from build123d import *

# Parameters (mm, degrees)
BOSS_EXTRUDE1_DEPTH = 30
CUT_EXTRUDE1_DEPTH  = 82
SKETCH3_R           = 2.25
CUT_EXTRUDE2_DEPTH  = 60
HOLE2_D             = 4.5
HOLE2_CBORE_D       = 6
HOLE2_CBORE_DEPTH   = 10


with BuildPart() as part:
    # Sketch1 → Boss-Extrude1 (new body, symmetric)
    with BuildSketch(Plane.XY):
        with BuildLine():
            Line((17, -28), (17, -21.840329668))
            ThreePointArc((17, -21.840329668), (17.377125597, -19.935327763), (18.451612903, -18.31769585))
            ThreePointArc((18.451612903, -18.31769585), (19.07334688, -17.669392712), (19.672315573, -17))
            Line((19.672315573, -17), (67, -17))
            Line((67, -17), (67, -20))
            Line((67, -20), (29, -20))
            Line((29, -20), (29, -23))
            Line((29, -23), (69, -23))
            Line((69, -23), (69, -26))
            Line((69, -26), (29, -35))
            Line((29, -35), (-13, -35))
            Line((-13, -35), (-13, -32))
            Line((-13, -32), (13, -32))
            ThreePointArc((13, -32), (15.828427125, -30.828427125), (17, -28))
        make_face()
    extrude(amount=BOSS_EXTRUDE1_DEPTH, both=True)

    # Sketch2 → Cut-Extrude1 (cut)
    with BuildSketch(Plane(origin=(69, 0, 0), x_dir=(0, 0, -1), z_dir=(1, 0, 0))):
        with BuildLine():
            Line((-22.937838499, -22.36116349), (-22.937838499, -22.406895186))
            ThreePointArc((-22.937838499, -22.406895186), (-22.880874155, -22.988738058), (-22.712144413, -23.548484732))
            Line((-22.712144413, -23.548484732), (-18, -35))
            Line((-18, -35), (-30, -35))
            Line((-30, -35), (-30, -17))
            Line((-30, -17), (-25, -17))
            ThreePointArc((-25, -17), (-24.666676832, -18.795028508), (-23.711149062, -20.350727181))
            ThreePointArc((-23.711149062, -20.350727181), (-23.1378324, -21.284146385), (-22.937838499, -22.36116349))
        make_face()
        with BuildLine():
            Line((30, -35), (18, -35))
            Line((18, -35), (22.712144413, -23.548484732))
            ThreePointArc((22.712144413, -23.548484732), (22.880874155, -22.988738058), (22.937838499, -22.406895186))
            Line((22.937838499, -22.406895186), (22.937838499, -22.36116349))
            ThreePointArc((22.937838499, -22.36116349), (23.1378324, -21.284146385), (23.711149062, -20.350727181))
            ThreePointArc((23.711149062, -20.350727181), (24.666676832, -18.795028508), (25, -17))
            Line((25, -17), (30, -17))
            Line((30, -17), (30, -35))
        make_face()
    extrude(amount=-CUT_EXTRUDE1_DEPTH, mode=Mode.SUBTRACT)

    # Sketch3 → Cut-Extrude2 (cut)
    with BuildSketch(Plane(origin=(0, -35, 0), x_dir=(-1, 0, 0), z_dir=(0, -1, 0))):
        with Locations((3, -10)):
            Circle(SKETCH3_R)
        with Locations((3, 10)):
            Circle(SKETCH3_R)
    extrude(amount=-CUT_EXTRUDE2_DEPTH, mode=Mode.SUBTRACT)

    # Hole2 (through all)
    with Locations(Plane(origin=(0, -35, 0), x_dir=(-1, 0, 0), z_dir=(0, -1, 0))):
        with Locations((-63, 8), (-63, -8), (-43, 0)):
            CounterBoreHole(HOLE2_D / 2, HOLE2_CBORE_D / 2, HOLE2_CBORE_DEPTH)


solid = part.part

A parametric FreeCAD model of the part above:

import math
import FreeCAD as App
import Part
import Sketcher

V = App.Vector

doc = App.newDocument("Part")
body = doc.addObject("PartDesign::Body", "Body")

sketch1 = body.newObject("Sketcher::SketchObject", "Sketch")
sketch1.AttachmentSupport = (doc.getObject("XY_Plane"), [""])
sketch1.MapMode = "FlatFace"
sketch1.addGeometry([
    Part.LineSegment(V(17, -21.8, 0), V(17, -28, 0)),
    Part.ArcOfCircle(Part.Circle(V(13, -28, 0), V(0, 0, 1), 4), math.radians(-90), math.radians(0)),
    Part.LineSegment(V(13, -32, 0), V(-13, -32, 0)),
    Part.LineSegment(V(-13, -32, 0), V(-13, -35, 0)),
    Part.LineSegment(V(-13, -35, 0), V(29, -35, 0)),
    Part.LineSegment(V(29, -35, 0), V(69, -26, 0)),
    Part.LineSegment(V(69, -26, 0), V(69, -23, 0)),
    Part.LineSegment(V(69, -23, 0), V(29, -23, 0)),
    Part.LineSegment(V(29, -23, 0), V(29, -20, 0)),
    Part.LineSegment(V(29, -20, 0), V(67, -20, 0)),
    Part.LineSegment(V(67, -20, 0), V(67, -17, 0)),
    Part.LineSegment(V(67, -17, 0), V(19.7, -17, 0)),
    Part.ArcOfCircle(Part.Circle(V(0, 0, 0), V(0, 0, 1), 26), math.radians(-44.79), math.radians(-40.83)),
    Part.ArcOfCircle(Part.Circle(V(22, -21.8, 0), V(0, 0, 1), 5), math.radians(135), math.radians(180)),
], False)
sketch1.addConstraint([
    Sketcher.Constraint("Tangent", 0, 2, 1, 2),
    Sketcher.Constraint("Tangent", 1, 1, 2, 1),
    Sketcher.Constraint("Coincident", 2, 2, 3, 1),
    Sketcher.Constraint("Coincident", 3, 2, 4, 1),
    Sketcher.Constraint("Coincident", 4, 2, 5, 1),
    Sketcher.Constraint("Coincident", 5, 2, 6, 1),
    Sketcher.Constraint("Coincident", 6, 2, 7, 1),
    Sketcher.Constraint("Coincident", 7, 2, 8, 1),
    Sketcher.Constraint("Coincident", 8, 2, 9, 1),
    Sketcher.Constraint("Coincident", 9, 2, 10, 1),
    Sketcher.Constraint("Coincident", 10, 2, 11, 1),
    Sketcher.Constraint("Coincident", 11, 2, 12, 2),
    Sketcher.Constraint("Tangent", 12, 1, 13, 1),
    Sketcher.Constraint("Tangent", 13, 2, 0, 1),
    Sketcher.Constraint("Vertical", 0),
    Sketcher.Constraint("Horizontal", 2),
    Sketcher.Constraint("Vertical", 3),
    Sketcher.Constraint("Horizontal", 4),
    Sketcher.Constraint("Vertical", 6),
    Sketcher.Constraint("Horizontal", 7),
    Sketcher.Constraint("Vertical", 8),
    Sketcher.Constraint("Horizontal", 9),
    Sketcher.Constraint("Vertical", 10),
    Sketcher.Constraint("Horizontal", 11),
    Sketcher.Constraint("Coincident", 12, 3, -1, 1),
    Sketcher.Constraint("Vertical", 4, 2, 7, 2),
    Sketcher.Constraint("Equal", 3, 6),
    Sketcher.Constraint("Equal", 6, 8),
    Sketcher.Constraint("Equal", 8, 10),
    Sketcher.Constraint("Radius", 1, 4.0),
    Sketcher.Constraint("Radius", 12, 25.999999),
    Sketcher.Constraint("Radius", 13, 5.0),
    Sketcher.Constraint("DistanceX", 2, 2, 2, 1, 26.0),
    Sketcher.Constraint("DistanceX", 4, 1, 4, 2, 42.0),
    Sketcher.Constraint("DistanceX", 7, 2, 7, 1, 40.0),
    Sketcher.Constraint("DistanceX", 9, 1, 9, 2, 38.0),
    Sketcher.Constraint("DistanceY", 3, 2, 3, 1, 3.0),
    Sketcher.Constraint("Distance", 5, 41.0),
    Sketcher.Constraint("DistanceX", -1, 1, 1, 3, 13.0),
    Sketcher.Constraint("DistanceY", 1, 3, -1, 1, 28.0),
])
pad1 = body.newObject("PartDesign::Pad", "Pad")
pad1.Profile = sketch1
pad1.Length = 60
pad1.Midplane = True

sketch2 = body.newObject("Sketcher::SketchObject", "Sketch001")
sketch2.AttachmentSupport = (doc.getObject("YZ_Plane"), [""])
sketch2.MapMode = "FlatFace"
sketch2.AttachmentOffset = App.Placement(V(0, 0, 69), App.Rotation())
sketch2.addGeometry([
    Part.LineSegment(V(-22.407, 22.938, 0), V(-22.361, 22.938, 0)),
    Part.ArcOfCircle(Part.Circle(V(-22.361, 25.938, 0), V(0, 0, 1), 3), math.radians(-90), math.radians(-48)),
    Part.ArcOfCircle(Part.Circle(V(-17, 20, 0), V(0, 0, 1), 5), math.radians(90), math.radians(132)),
    Part.LineSegment(V(-17, 25, 0), V(-17, 30, 0)),
    Part.LineSegment(V(-17, 30, 0), V(-35, 30, 0)),
    Part.LineSegment(V(-35, 30, 0), V(-35, 18, 0)),
    Part.LineSegment(V(-35, 18, 0), V(-23.548, 22.712, 0)),
    Part.ArcOfCircle(Part.Circle(V(-22.407, 19.938, 0), V(0, 0, 1), 3), math.radians(90), math.radians(112)),
    Part.LineSegment(V(-35, -18, 0), V(-35, -30, 0)),
    Part.LineSegment(V(-35, -30, 0), V(-17, -30, 0)),
    Part.LineSegment(V(-17, -30, 0), V(-17, -25, 0)),
    Part.ArcOfCircle(Part.Circle(V(-17, -20, 0), V(0, 0, 1), 5), math.radians(-132), math.radians(-90)),
    Part.ArcOfCircle(Part.Circle(V(-22.361, -25.938, 0), V(0, 0, 1), 3), math.radians(48), math.radians(90)),
    Part.LineSegment(V(-22.361, -22.938, 0), V(-22.407, -22.938, 0)),
    Part.ArcOfCircle(Part.Circle(V(-22.407, -19.938, 0), V(0, 0, 1), 3), math.radians(-112), math.radians(-90)),
    Part.LineSegment(V(-23.548, -22.712, 0), V(-35, -18, 0)),
], False)
sketch2.addConstraint([
    Sketcher.Constraint("Tangent", 0, 2, 1, 1),
    Sketcher.Constraint("Tangent", 1, 2, 2, 2),
    Sketcher.Constraint("Coincident", 2, 1, 3, 1),
    Sketcher.Constraint("Coincident", 3, 2, 4, 1),
    Sketcher.Constraint("Coincident", 4, 2, 5, 1),
    Sketcher.Constraint("Coincident", 5, 2, 6, 1),
    Sketcher.Constraint("Tangent", 6, 2, 7, 2),
    Sketcher.Constraint("Tangent", 7, 1, 0, 1),
    Sketcher.Constraint("Coincident", 8, 2, 9, 1),
    Sketcher.Constraint("Coincident", 9, 2, 10, 1),
    Sketcher.Constraint("Coincident", 10, 2, 11, 2),
    Sketcher.Constraint("Tangent", 11, 1, 12, 1),
    Sketcher.Constraint("Tangent", 12, 2, 13, 1),
    Sketcher.Constraint("Tangent", 13, 2, 14, 2),
    Sketcher.Constraint("Tangent", 14, 1, 15, 1),
    Sketcher.Constraint("Coincident", 15, 2, 8, 1),
    Sketcher.Constraint("Horizontal", 0),
    Sketcher.Constraint("Vertical", 3),
    Sketcher.Constraint("Horizontal", 4),
    Sketcher.Constraint("Vertical", 5),
    Sketcher.Constraint("Vertical", 8),
    Sketcher.Constraint("Horizontal", 9),
    Sketcher.Constraint("Vertical", 10),
    Sketcher.Constraint("Horizontal", 13),
    Sketcher.Constraint("Equal", 1, 7),
    Sketcher.Constraint("Equal", 2, 11),
    Sketcher.Constraint("Equal", 7, 12),
    Sketcher.Constraint("Equal", 12, 14),
    Sketcher.Constraint("Symmetric", 2, 3, 11, 3, -1),
    Sketcher.Constraint("Symmetric", 7, 3, 14, 3, -1),
    Sketcher.Constraint("Symmetric", 4, 2, 8, 2, -1),
    Sketcher.Constraint("Vertical", 11, 3, 2, 1),
    Sketcher.Constraint("Vertical", 3, 2, 9, 2),
    Sketcher.Constraint("Vertical", 6, 2, 14, 1),
    Sketcher.Constraint("Radius", 1, 3.0),
    Sketcher.Constraint("Radius", 2, 5.0),
    Sketcher.Constraint("DistanceX", 4, 2, 4, 1, 18.0),
    Sketcher.Constraint("DistanceY", 3, 1, 3, 2, 5.0),
    Sketcher.Constraint("DistanceY", 5, 2, 5, 1, 12.0),
    Sketcher.Constraint("DistanceX", 2, 3, -1, 1, 17.0),
    Sketcher.Constraint("DistanceY", -1, 1, 2, 3, 20.0),
    Sketcher.Constraint("DistanceX", 0, 1, 0, 2, 0.045732),
    Sketcher.Constraint("DistanceY", -1, 1, 1, 3, 25.937839),
])
pocket1 = body.newObject("PartDesign::Pocket", "Pocket")
pocket1.Profile = sketch2
pocket1.Length = 82

sketch3 = body.newObject("Sketcher::SketchObject", "Sketch002")
sketch3.AttachmentSupport = (doc.getObject("XZ_Plane"), [""])
sketch3.MapMode = "FlatFace"
sketch3.AttachmentOffset = App.Placement(V(0, 0, 35), App.Rotation())
sketch3.addGeometry([
    Part.Circle(V(-3, 10, 0), V(0, 0, 1), 2.2),
    Part.Circle(V(-3, -10, 0), V(0, 0, 1), 2.2),
], False)
sketch3.addConstraint([
    Sketcher.Constraint("Equal", 0, 1),
    Sketcher.Constraint("Symmetric", 0, 3, 1, 3, -1),
    Sketcher.Constraint("Diameter", 0, 4.5),
    Sketcher.Constraint("DistanceX", 0, 3, -1, 1, 3.0),
    Sketcher.Constraint("DistanceY", -1, 1, 0, 3, 10.0),
])
pocket2 = body.newObject("PartDesign::Pocket", "Pocket001")
pocket2.Profile = sketch3
pocket2.Length = 60

sketch4 = body.newObject("Sketcher::SketchObject", "Sketch003")
sketch4.AttachmentSupport = (doc.getObject("XZ_Plane"), [""])
sketch4.MapMode = "FlatFace"
sketch4.AttachmentOffset = App.Placement(V(0, 0, 35), App.Rotation())
sketch4.addGeometry([
    Part.Circle(V(63, -8, 0), V(0, 0, 1), 2.2),
    Part.Circle(V(63, 8, 0), V(0, 0, 1), 2.2),
    Part.Circle(V(43, 0, 0), V(0, 0, 1), 2.2),
], False)
sketch4.addConstraint([
    Sketcher.Constraint("Equal", 0, 1),
    Sketcher.Constraint("Equal", 1, 2),
    Sketcher.Constraint("Symmetric", 0, 3, 1, 3, -1),
    Sketcher.Constraint("PointOnObject", 2, 3, -1),
    Sketcher.Constraint("Diameter", 0, 4.5),
    Sketcher.Constraint("DistanceX", -1, 1, 0, 3, 63.0),
    Sketcher.Constraint("DistanceY", 0, 3, -1, 1, 8.0),
    Sketcher.Constraint("DistanceX", -1, 1, 2, 3, 43.0),
])
doc.recompute()
hole = body.newObject("PartDesign::Hole", "Hole")
hole.Profile = sketch4
hole.ThreadType = "None"
hole.Diameter = 4.5
hole.DepthType = "ThroughAll"
hole.HoleCutType = "Counterbore"
hole.HoleCutDiameter = 6
hole.HoleCutDepth = 10

doc.recompute()
